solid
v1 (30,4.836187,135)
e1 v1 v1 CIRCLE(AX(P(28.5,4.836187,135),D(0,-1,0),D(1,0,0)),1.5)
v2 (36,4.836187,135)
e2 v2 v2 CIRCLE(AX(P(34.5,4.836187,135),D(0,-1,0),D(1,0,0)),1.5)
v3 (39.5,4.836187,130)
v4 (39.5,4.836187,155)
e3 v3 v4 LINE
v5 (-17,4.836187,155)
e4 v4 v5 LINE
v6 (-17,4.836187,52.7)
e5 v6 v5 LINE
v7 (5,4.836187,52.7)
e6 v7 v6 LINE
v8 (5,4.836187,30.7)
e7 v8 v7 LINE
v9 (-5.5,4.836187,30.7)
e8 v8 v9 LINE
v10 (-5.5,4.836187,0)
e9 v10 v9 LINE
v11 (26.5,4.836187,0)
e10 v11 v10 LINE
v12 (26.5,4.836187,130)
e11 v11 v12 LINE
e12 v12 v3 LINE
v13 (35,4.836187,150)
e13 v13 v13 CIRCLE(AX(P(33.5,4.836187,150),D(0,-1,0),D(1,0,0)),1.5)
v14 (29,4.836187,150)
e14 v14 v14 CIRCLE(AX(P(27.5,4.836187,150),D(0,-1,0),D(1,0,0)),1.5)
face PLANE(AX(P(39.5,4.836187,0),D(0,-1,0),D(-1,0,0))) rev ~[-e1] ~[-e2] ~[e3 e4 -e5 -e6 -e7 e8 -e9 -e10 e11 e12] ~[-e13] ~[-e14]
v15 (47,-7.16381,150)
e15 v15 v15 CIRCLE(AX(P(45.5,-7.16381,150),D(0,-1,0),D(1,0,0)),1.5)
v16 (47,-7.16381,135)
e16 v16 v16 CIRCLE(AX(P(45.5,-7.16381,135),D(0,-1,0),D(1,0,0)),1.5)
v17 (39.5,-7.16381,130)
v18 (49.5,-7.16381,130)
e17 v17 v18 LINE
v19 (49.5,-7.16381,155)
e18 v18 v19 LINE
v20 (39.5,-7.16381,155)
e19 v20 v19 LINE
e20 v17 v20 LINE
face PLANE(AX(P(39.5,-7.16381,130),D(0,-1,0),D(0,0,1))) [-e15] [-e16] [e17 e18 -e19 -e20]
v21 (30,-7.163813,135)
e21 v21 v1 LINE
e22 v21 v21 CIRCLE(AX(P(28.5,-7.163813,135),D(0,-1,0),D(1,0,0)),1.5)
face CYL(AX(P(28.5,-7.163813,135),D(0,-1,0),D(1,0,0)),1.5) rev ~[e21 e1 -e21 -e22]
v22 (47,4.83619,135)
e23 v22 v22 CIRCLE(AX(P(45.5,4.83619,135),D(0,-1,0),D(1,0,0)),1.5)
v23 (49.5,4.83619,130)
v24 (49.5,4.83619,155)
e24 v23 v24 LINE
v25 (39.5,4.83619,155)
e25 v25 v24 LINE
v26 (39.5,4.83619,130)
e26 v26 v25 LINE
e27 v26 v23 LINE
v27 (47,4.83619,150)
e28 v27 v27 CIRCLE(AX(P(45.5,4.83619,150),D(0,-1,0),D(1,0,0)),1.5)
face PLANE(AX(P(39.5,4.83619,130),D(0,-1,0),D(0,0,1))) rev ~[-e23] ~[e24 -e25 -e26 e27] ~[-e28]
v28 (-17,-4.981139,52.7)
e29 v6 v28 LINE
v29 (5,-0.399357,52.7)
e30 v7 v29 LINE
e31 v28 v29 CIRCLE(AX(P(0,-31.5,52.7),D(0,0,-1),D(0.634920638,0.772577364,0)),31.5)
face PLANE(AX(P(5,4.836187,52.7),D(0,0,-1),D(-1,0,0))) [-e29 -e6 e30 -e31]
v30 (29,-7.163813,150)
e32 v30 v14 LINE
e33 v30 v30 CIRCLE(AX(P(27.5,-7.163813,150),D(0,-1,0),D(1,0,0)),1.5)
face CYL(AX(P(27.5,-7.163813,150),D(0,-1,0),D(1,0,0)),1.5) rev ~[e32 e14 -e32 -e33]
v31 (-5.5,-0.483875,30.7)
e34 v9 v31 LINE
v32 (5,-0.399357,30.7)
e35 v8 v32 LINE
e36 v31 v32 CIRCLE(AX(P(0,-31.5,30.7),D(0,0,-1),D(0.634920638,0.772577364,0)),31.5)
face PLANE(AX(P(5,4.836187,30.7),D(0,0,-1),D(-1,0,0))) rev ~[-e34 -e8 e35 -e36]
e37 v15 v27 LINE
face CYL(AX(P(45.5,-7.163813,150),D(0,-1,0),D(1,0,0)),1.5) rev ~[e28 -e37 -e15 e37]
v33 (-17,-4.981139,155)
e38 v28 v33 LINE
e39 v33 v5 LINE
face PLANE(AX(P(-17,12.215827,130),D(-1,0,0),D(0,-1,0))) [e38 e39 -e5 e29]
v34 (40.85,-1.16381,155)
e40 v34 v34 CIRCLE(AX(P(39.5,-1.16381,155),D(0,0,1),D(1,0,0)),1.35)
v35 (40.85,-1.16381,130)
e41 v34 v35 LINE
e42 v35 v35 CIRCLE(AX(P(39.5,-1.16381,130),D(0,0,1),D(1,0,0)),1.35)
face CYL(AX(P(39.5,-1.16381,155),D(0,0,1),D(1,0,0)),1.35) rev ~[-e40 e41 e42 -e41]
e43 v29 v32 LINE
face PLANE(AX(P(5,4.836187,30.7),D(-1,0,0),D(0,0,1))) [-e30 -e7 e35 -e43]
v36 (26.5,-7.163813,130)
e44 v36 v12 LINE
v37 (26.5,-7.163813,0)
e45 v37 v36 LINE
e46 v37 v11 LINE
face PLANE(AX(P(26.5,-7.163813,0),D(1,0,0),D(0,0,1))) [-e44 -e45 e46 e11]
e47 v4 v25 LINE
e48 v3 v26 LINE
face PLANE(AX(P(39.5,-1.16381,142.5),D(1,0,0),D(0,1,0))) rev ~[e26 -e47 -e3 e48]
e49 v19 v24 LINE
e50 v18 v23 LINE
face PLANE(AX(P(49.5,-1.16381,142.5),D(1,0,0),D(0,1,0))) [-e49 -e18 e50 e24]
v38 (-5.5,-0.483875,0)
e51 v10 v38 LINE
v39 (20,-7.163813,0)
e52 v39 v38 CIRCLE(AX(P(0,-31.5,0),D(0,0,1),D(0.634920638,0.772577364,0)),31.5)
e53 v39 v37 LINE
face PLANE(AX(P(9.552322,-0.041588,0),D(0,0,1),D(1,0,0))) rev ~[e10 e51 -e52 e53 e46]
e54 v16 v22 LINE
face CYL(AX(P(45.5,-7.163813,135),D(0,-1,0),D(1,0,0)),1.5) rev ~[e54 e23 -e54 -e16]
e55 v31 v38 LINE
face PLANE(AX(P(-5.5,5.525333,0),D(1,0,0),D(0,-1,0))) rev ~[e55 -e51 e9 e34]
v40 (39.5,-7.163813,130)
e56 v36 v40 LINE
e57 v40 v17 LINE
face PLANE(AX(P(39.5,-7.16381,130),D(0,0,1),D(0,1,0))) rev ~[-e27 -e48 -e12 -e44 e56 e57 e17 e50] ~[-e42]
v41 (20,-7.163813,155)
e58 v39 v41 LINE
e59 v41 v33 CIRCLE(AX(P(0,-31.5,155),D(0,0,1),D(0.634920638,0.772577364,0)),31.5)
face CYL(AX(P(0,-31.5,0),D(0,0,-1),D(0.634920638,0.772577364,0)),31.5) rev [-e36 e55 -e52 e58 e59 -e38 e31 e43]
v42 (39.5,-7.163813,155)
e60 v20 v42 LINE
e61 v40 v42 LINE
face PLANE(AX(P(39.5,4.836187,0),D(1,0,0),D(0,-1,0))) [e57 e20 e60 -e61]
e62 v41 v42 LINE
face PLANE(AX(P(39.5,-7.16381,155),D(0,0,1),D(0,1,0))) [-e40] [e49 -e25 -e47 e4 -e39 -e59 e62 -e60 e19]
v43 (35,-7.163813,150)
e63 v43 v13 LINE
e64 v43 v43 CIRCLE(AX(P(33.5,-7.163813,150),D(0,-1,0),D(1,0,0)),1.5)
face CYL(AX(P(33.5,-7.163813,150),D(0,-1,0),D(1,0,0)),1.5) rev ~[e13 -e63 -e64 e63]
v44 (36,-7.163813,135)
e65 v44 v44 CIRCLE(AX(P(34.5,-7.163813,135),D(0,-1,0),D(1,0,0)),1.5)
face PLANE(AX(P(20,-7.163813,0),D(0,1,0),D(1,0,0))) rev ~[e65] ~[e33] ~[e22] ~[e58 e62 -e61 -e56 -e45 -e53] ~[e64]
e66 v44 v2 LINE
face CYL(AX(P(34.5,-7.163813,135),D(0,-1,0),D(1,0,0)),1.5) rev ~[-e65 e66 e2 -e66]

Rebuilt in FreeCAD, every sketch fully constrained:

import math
import FreeCAD as App
import Part
import Sketcher

doc = App.newDocument("Part")
body = doc.addObject("PartDesign::Body", "Body")

sketch1 = doc.addObject("Sketcher::SketchObject", "Sketch")
body.addObject(sketch1)
sketch1.AttachmentSupport = (doc.XY_Plane, [""])
sketch1.MapMode = "FlatFace"
sketch1.addGeometry(Part.LineSegment(App.Vector(40, 5, 0), App.Vector(-20, 5, 0)), False)
sketch1.addGeometry(Part.LineSegment(App.Vector(-20, 5, 0), App.Vector(-20, -7, 0)), False)
sketch1.addGeometry(Part.ArcOfCircle(Part.Circle(App.Vector(0, -31, 0), App.Vector(0, 0, 1), 31), math.radians(51), math.radians(129)), False)
sketch1.addGeometry(Part.LineSegment(App.Vector(20, -7, 0), App.Vector(40, -7, 0)), False)
sketch1.addGeometry(Part.LineSegment(App.Vector(40, -7, 0), App.Vector(40, 5, 0)), False)
sketch1.addConstraint(Sketcher.Constraint("Coincident", 0, 2, 1, 1))
sketch1.addConstraint(Sketcher.Constraint("Coincident", 1, 2, 2, 2))
sketch1.addConstraint(Sketcher.Constraint("Coincident", 2, 1, 3, 1))
sketch1.addConstraint(Sketcher.Constraint("Coincident", 3, 2, 4, 1))
sketch1.addConstraint(Sketcher.Constraint("Coincident", 4, 2, 0, 1))
sketch1.addConstraint(Sketcher.Constraint("Horizontal", 0))
sketch1.addConstraint(Sketcher.Constraint("Vertical", 1))
sketch1.addConstraint(Sketcher.Constraint("Horizontal", 3))
sketch1.addConstraint(Sketcher.Constraint("Vertical", 4))
sketch1.addConstraint(Sketcher.Constraint("Symmetric", 1, 2, 2, 1, -2))
sketch1.addConstraint(Sketcher.Constraint("Radius", 2, 31.5))
sketch1.addConstraint(Sketcher.Constraint("DistanceY", 1, 2, 1, 1, 12.0))
sketch1.addConstraint(Sketcher.Constraint("DistanceX", 0, 2, 0, 1, 59.5))
sketch1.addConstraint(Sketcher.Constraint("DistanceX", 3, 1, 3, 2, 19.5))
sketch1.addConstraint(Sketcher.Constraint("DistanceY", 2, 3, -1, 1, 31.5))
pad1 = doc.addObject("PartDesign::Pad", "Pad")
body.addObject(pad1)
pad1.Profile = sketch1
pad1.Length = 155

sketch2 = doc.addObject("Sketcher::SketchObject", "Sketch001")
body.addObject(sketch2)
sketch2.AttachmentSupport = (doc.XZ_Plane, [""])
sketch2.MapMode = "FlatFace"
sketch2.AttachmentOffset = App.Placement(App.Vector(0, 0, 7.163813), App.Rotation())
sketch2.addGeometry(Part.Circle(App.Vector(28.5, 135, 0), App.Vector(0, 0, 1), 1.5), False)
sketch2.addGeometry(Part.Circle(App.Vector(34.5, 135, 0), App.Vector(0, 0, 1), 1.5), False)
sketch2.addGeometry(Part.LineSegment(App.Vector(26.5, 130, 0), App.Vector(26.5, 0, 0)), False)
sketch2.addGeometry(Part.LineSegment(App.Vector(26.5, 0, 0), App.Vector(39.5, 0, 0)), False)
sketch2.addGeometry(Part.LineSegment(App.Vector(39.5, 0, 0), App.Vector(39.5, 130, 0)), False)
sketch2.addGeometry(Part.LineSegment(App.Vector(39.5, 130, 0), App.Vector(26.5, 130, 0)), False)
sketch2.addConstraint(Sketcher.Constraint("Coincident", 2, 2, 3, 1))
sketch2.addConstraint(Sketcher.Constraint("Coincident", 3, 2, 4, 1))
sketch2.addConstraint(Sketcher.Constraint("Coincident", 4, 2, 5, 1))
sketch2.addConstraint(Sketcher.Constraint("Coincident", 5, 2, 2, 1))
sketch2.addConstraint(Sketcher.Constraint("Vertical", 2))
sketch2.addConstraint(Sketcher.Constraint("Horizontal", 3))
sketch2.addConstraint(Sketcher.Constraint("Vertical", 4))
sketch2.addConstraint(Sketcher.Constraint("Horizontal", 5))
sketch2.addConstraint(Sketcher.Constraint("Equal", 0, 1))
sketch2.addConstraint(Sketcher.Constraint("PointOnObject", 2, 2, -1))
sketch2.addConstraint(Sketcher.Constraint("Horizontal", 0, 3, 1, 3))
sketch2.addConstraint(Sketcher.Constraint("Diameter", 0, 3.0))
sketch2.addConstraint(Sketcher.Constraint("DistanceX", 3, 1, 3, 2, 13.0))
sketch2.addConstraint(Sketcher.Constraint("DistanceY", 2, 2, 2, 1, 130.0))
sketch2.addConstraint(Sketcher.Constraint("DistanceY", -1, 1, 0, 3, 135.0))
sketch2.addConstraint(Sketcher.Constraint("DistanceX", 0, 3, 1, 3, 6.0))
sketch2.addConstraint(Sketcher.Constraint("DistanceX", 2, 2, 0, 3, 2.0))
sketch2.addConstraint(Sketcher.Constraint("DistanceX", -1, 1, 0, 3, 28.5))
pocket1 = doc.addObject("PartDesign::Pocket", "Pocket")
body.addObject(pocket1)
pocket1.Profile = sketch2
pocket1.Type = "ThroughAll"

sketch3 = doc.addObject("Sketcher::SketchObject", "Sketch002")
body.addObject(sketch3)
sketch3.AttachmentSupport = (doc.XY_Plane, [""])
sketch3.MapMode = "FlatFace"
sketch3.AttachmentOffset = App.Placement(App.Vector(0, 0, 130), App.Rotation())
sketch3.addGeometry(Part.LineSegment(App.Vector(-23, -12, 0), App.Vector(-23, 12, 0)), False)
sketch3.addGeometry(Part.LineSegment(App.Vector(-23, 12, 0), App.Vector(-17, 12, 0)), False)
sketch3.addGeometry(Part.LineSegment(App.Vector(-17, 12, 0), App.Vector(-17, -12, 0)), False)
sketch3.addGeometry(Part.LineSegment(App.Vector(-17, -12, 0), App.Vector(-23, -12, 0)), False)
sketch3.addConstraint(Sketcher.Constraint("Coincident", 0, 2, 1, 1))
sketch3.addConstraint(Sketcher.Constraint("Coincident", 1, 2, 2, 1))
sketch3.addConstraint(Sketcher.Constraint("Coincident", 2, 2, 3, 1))
sketch3.addConstraint(Sketcher.Constraint("Coincident", 3, 2, 0, 1))
sketch3.addConstraint(Sketcher.Constraint("Vertical", 0))
sketch3.addConstraint(Sketcher.Constraint("Horizontal", 1))
sketch3.addConstraint(Sketcher.Constraint("Vertical", 2))
sketch3.addConstraint(Sketcher.Constraint("Horizontal", 3))
sketch3.addConstraint(Sketcher.Constraint("DistanceX", 1, 2, -1, 1, 17.0))
sketch3.addConstraint(Sketcher.Constraint("DistanceX", 1, 1, 1, 2, 5.583172))
sketch3.addConstraint(Sketcher.Constraint("DistanceY", 0, 1, 0, 2, 23.950112))
sketch3.addConstraint(Sketcher.Constraint("DistanceY", -1, 1, 0, 2, 12.215827))
pocket2 = doc.addObject("PartDesign::Pocket", "Pocket001")
body.addObject(pocket2)
pocket2.Profile = sketch3
pocket2.Type = "ThroughAll"
pocket2.Midplane = True

sketch4 = doc.addObject("Sketcher::SketchObject", "Sketch003")
body.addObject(sketch4)
sketch4.AttachmentSupport = (doc.XZ_Plane, [""])
sketch4.MapMode = "FlatFace"
sketch4.AttachmentOffset = App.Placement(App.Vector(0, 0, -4.836187), App.Rotation())
sketch4.addGeometry(Part.LineSegment(App.Vector(5, 53, 0), App.Vector(5, 31, 0)), False)
sketch4.addGeometry(Part.LineSegment(App.Vector(5, 31, 0), App.Vector(-17, 31, 0)), False)
sketch4.addGeometry(Part.LineSegment(App.Vector(-17, 31, 0), App.Vector(-17, 53, 0)), False)
sketch4.addGeometry(Part.LineSegment(App.Vector(-17, 53, 0), App.Vector(5, 53, 0)), False)
sketch4.addConstraint(Sketcher.Constraint("Coincident", 0, 2, 1, 1))
sketch4.addConstraint(Sketcher.Constraint("Coincident", 1, 2, 2, 1))
sketch4.addConstraint(Sketcher.Constraint("Coincident", 2, 2, 3, 1))
sketch4.addConstraint(Sketcher.Constraint("Coincident", 3, 2, 0, 1))
sketch4.addConstraint(Sketcher.Constraint("Vertical", 0))
sketch4.addConstraint(Sketcher.Constraint("Horizontal", 1))
sketch4.addConstraint(Sketcher.Constraint("Vertical", 2))
sketch4.addConstraint(Sketcher.Constraint("Horizontal", 3))
sketch4.addConstraint(Sketcher.Constraint("Equal", 3, 0))
sketch4.addConstraint(Sketcher.Constraint("DistanceX", 1, 2, 1, 1, 22.0))
sketch4.addConstraint(Sketcher.Constraint("DistanceX", -1, 1, 0, 2, 5.0))
sketch4.addConstraint(Sketcher.Constraint("DistanceY", -1, 1, 0, 2, 30.7))
pocket3 = doc.addObject("PartDesign::Pocket", "Pocket002")
body.addObject(pocket3)
pocket3.Profile = sketch4
pocket3.Type = "ThroughAll"
pocket3.Reversed = True

sketch5 = doc.addObject("Sketcher::SketchObject", "Sketch004")
body.addObject(sketch5)
sketch5.AttachmentSupport = (doc.XY_Plane, [""])
sketch5.MapMode = "FlatFace"
sketch5.addGeometry(Part.LineSegment(App.Vector(-17, -7, 0), App.Vector(-17, 6, 0)), False)
sketch5.addGeometry(Part.LineSegment(App.Vector(-17, 6, 0), App.Vector(-6, 6, 0)), False)
sketch5.addGeometry(Part.LineSegment(App.Vector(-6, 6, 0), App.Vector(-6, -7, 0)), False)
sketch5.addGeometry(Part.LineSegment(App.Vector(-6, -7, 0), App.Vector(-17, -7, 0)), False)
sketch5.addConstraint(Sketcher.Constraint("Coincident", 0, 2, 1, 1))
sketch5.addConstraint(Sketcher.Constraint("Coincident", 1, 2, 2, 1))
sketch5.addConstraint(Sketcher.Constraint("Coincident", 2, 2, 3, 1))
sketch5.addConstraint(Sketcher.Constraint("Coincident", 3, 2, 0, 1))
sketch5.addConstraint(Sketcher.Constraint("Vertical", 0))
sketch5.addConstraint(Sketcher.Constraint("Horizontal", 1))
sketch5.addConstraint(Sketcher.Constraint("Vertical", 2))
sketch5.addConstraint(Sketcher.Constraint("Horizontal", 3))
sketch5.addConstraint(Sketcher.Constraint("DistanceX", 1, 1, 1, 2, 11.5))
sketch5.addConstraint(Sketcher.Constraint("DistanceX", 0, 2, -1, 1, 17.0))
sketch5.addConstraint(Sketcher.Constraint("DistanceY", 0, 1, 0, 2, 12.924639))
sketch5.addConstraint(Sketcher.Constraint("DistanceY", -1, 1, 0, 2, 5.525333))
pocket4 = doc.addObject("PartDesign::Pocket", "Pocket003")
body.addObject(pocket4)
pocket4.Profile = sketch5
pocket4.Length = 31
pocket4.Reversed = True

sketch6 = doc.addObject("Sketcher::SketchObject", "Sketch005")
body.addObject(sketch6)
sketch6.AttachmentSupport = (doc.YZ_Plane, [""])
sketch6.MapMode = "FlatFace"
sketch6.AttachmentOffset = App.Placement(App.Vector(0, 0, 39.5), App.Rotation())
sketch6.addGeometry(Part.LineSegment(App.Vector(-7, 155, 0), App.Vector(-7, 130, 0)), False)
sketch6.addGeometry(Part.LineSegment(App.Vector(-7, 130, 0), App.Vector(5, 130, 0)), False)
sketch6.addGeometry(Part.LineSegment(App.Vector(5, 130, 0), App.Vector(5, 155, 0)), False)
sketch6.addGeometry(Part.LineSegment(App.Vector(5, 155, 0), App.Vector(-7, 155, 0)), False)
sketch6.addConstraint(Sketcher.Constraint("Coincident", 0, 2, 1, 1))
sketch6.addConstraint(Sketcher.Constraint("Coincident", 1, 2, 2, 1))
sketch6.addConstraint(Sketcher.Constraint("Coincident", 2, 2, 3, 1))
sketch6.addConstraint(Sketcher.Constraint("Coincident", 3, 2, 0, 1))
sketch6.addConstraint(Sketcher.Constraint("Vertical", 0))
sketch6.addConstraint(Sketcher.Constraint("Horizontal", 1))
sketch6.addConstraint(Sketcher.Constraint("Vertical", 2))
sketch6.addConstraint(Sketcher.Constraint("Horizontal", 3))
sketch6.addConstraint(Sketcher.Constraint("DistanceX", 1, 1, 1, 2, 12.0))
sketch6.addConstraint(Sketcher.Constraint("DistanceY", 0, 2, 0, 1, 25.0))
sketch6.addConstraint(Sketcher.Constraint("DistanceY", -1, 1, 0, 2, 130.0))
sketch6.addConstraint(Sketcher.Constraint("DistanceX", 0, 2, -1, 1, 7.16381))
pad2 = doc.addObject("PartDesign::Pad", "Pad001")
body.addObject(pad2)
pad2.Profile = sketch6
pad2.Length = 10

sketch7 = doc.addObject("Sketcher::SketchObject", "Sketch006")
body.addObject(sketch7)
sketch7.AttachmentSupport = (doc.XY_Plane, [""])
sketch7.MapMode = "FlatFace"
sketch7.AttachmentOffset = App.Placement(App.Vector(0, 0, 155), App.Rotation())
sketch7.addGeometry(Part.Circle(App.Vector(39.5, -1.2, 0), App.Vector(0, 0, 1), 1.4), False)
sketch7.addConstraint(Sketcher.Constraint("Diameter", 0, 2.7))
sketch7.addConstraint(Sketcher.Constraint("DistanceX", -1, 1, 0, 3, 39.5))
sketch7.addConstraint(Sketcher.Constraint("DistanceY", 0, 3, -1, 1, 1.16381))
pocket5 = doc.addObject("PartDesign::Pocket", "Pocket004")
body.addObject(pocket5)
pocket5.Profile = sketch7
pocket5.Type = "ThroughAll"

sketch8 = doc.addObject("Sketcher::SketchObject", "Sketch007")
body.addObject(sketch8)
sketch8.AttachmentSupport = (doc.XZ_Plane, [""])
sketch8.MapMode = "FlatFace"
sketch8.AttachmentOffset = App.Placement(App.Vector(0, 0, 7.163813), App.Rotation())
sketch8.addGeometry(Part.Circle(App.Vector(27.5, 150, 0), App.Vector(0, 0, 1), 1.5), False)
sketch8.addGeometry(Part.Circle(App.Vector(33.5, 150, 0), App.Vector(0, 0, 1), 1.5), False)
sketch8.addGeometry(Part.Circle(App.Vector(45.5, 150, 0), App.Vector(0, 0, 1), 1.5), False)
sketch8.addGeometry(Part.Circle(App.Vector(45.5, 135, 0), App.Vector(0, 0, 1), 1.5), False)
sketch8.addConstraint(Sketcher.Constraint("Equal", 0, 1))
sketch8.addConstraint(Sketcher.Constraint("Equal", 1, 2))
sketch8.addConstraint(Sketcher.Constraint("Equal", 2, 3))
sketch8.addConstraint(Sketcher.Constraint("Horizontal", 0, 3, 1, 3))
sketch8.addConstraint(Sketcher.Constraint("Horizontal", 1, 3, 2, 3))
sketch8.addConstraint(Sketcher.Constraint("Vertical", 2, 3, 3, 3))
sketch8.addConstraint(Sketcher.Constraint("Diameter", 0, 3.0))
sketch8.addConstraint(Sketcher.Constraint("DistanceY", -1, 1, 0, 3, 150.0))
sketch8.addConstraint(Sketcher.Constraint("DistanceY", -1, 1, 3, 3, 135.0))
sketch8.addConstraint(Sketcher.Constraint("DistanceX", 0, 3, 1, 3, 6.0))
sketch8.addConstraint(Sketcher.Constraint("DistanceX", 1, 3, 2, 3, 12.0))
sketch8.addConstraint(Sketcher.Constraint("DistanceX", -1, 1, 0, 3, 27.5))
pocket6 = doc.addObject("PartDesign::Pocket", "Pocket005")
body.addObject(pocket6)
pocket6.Profile = sketch8
pocket6.Type = "ThroughAll"

doc.recompute()
